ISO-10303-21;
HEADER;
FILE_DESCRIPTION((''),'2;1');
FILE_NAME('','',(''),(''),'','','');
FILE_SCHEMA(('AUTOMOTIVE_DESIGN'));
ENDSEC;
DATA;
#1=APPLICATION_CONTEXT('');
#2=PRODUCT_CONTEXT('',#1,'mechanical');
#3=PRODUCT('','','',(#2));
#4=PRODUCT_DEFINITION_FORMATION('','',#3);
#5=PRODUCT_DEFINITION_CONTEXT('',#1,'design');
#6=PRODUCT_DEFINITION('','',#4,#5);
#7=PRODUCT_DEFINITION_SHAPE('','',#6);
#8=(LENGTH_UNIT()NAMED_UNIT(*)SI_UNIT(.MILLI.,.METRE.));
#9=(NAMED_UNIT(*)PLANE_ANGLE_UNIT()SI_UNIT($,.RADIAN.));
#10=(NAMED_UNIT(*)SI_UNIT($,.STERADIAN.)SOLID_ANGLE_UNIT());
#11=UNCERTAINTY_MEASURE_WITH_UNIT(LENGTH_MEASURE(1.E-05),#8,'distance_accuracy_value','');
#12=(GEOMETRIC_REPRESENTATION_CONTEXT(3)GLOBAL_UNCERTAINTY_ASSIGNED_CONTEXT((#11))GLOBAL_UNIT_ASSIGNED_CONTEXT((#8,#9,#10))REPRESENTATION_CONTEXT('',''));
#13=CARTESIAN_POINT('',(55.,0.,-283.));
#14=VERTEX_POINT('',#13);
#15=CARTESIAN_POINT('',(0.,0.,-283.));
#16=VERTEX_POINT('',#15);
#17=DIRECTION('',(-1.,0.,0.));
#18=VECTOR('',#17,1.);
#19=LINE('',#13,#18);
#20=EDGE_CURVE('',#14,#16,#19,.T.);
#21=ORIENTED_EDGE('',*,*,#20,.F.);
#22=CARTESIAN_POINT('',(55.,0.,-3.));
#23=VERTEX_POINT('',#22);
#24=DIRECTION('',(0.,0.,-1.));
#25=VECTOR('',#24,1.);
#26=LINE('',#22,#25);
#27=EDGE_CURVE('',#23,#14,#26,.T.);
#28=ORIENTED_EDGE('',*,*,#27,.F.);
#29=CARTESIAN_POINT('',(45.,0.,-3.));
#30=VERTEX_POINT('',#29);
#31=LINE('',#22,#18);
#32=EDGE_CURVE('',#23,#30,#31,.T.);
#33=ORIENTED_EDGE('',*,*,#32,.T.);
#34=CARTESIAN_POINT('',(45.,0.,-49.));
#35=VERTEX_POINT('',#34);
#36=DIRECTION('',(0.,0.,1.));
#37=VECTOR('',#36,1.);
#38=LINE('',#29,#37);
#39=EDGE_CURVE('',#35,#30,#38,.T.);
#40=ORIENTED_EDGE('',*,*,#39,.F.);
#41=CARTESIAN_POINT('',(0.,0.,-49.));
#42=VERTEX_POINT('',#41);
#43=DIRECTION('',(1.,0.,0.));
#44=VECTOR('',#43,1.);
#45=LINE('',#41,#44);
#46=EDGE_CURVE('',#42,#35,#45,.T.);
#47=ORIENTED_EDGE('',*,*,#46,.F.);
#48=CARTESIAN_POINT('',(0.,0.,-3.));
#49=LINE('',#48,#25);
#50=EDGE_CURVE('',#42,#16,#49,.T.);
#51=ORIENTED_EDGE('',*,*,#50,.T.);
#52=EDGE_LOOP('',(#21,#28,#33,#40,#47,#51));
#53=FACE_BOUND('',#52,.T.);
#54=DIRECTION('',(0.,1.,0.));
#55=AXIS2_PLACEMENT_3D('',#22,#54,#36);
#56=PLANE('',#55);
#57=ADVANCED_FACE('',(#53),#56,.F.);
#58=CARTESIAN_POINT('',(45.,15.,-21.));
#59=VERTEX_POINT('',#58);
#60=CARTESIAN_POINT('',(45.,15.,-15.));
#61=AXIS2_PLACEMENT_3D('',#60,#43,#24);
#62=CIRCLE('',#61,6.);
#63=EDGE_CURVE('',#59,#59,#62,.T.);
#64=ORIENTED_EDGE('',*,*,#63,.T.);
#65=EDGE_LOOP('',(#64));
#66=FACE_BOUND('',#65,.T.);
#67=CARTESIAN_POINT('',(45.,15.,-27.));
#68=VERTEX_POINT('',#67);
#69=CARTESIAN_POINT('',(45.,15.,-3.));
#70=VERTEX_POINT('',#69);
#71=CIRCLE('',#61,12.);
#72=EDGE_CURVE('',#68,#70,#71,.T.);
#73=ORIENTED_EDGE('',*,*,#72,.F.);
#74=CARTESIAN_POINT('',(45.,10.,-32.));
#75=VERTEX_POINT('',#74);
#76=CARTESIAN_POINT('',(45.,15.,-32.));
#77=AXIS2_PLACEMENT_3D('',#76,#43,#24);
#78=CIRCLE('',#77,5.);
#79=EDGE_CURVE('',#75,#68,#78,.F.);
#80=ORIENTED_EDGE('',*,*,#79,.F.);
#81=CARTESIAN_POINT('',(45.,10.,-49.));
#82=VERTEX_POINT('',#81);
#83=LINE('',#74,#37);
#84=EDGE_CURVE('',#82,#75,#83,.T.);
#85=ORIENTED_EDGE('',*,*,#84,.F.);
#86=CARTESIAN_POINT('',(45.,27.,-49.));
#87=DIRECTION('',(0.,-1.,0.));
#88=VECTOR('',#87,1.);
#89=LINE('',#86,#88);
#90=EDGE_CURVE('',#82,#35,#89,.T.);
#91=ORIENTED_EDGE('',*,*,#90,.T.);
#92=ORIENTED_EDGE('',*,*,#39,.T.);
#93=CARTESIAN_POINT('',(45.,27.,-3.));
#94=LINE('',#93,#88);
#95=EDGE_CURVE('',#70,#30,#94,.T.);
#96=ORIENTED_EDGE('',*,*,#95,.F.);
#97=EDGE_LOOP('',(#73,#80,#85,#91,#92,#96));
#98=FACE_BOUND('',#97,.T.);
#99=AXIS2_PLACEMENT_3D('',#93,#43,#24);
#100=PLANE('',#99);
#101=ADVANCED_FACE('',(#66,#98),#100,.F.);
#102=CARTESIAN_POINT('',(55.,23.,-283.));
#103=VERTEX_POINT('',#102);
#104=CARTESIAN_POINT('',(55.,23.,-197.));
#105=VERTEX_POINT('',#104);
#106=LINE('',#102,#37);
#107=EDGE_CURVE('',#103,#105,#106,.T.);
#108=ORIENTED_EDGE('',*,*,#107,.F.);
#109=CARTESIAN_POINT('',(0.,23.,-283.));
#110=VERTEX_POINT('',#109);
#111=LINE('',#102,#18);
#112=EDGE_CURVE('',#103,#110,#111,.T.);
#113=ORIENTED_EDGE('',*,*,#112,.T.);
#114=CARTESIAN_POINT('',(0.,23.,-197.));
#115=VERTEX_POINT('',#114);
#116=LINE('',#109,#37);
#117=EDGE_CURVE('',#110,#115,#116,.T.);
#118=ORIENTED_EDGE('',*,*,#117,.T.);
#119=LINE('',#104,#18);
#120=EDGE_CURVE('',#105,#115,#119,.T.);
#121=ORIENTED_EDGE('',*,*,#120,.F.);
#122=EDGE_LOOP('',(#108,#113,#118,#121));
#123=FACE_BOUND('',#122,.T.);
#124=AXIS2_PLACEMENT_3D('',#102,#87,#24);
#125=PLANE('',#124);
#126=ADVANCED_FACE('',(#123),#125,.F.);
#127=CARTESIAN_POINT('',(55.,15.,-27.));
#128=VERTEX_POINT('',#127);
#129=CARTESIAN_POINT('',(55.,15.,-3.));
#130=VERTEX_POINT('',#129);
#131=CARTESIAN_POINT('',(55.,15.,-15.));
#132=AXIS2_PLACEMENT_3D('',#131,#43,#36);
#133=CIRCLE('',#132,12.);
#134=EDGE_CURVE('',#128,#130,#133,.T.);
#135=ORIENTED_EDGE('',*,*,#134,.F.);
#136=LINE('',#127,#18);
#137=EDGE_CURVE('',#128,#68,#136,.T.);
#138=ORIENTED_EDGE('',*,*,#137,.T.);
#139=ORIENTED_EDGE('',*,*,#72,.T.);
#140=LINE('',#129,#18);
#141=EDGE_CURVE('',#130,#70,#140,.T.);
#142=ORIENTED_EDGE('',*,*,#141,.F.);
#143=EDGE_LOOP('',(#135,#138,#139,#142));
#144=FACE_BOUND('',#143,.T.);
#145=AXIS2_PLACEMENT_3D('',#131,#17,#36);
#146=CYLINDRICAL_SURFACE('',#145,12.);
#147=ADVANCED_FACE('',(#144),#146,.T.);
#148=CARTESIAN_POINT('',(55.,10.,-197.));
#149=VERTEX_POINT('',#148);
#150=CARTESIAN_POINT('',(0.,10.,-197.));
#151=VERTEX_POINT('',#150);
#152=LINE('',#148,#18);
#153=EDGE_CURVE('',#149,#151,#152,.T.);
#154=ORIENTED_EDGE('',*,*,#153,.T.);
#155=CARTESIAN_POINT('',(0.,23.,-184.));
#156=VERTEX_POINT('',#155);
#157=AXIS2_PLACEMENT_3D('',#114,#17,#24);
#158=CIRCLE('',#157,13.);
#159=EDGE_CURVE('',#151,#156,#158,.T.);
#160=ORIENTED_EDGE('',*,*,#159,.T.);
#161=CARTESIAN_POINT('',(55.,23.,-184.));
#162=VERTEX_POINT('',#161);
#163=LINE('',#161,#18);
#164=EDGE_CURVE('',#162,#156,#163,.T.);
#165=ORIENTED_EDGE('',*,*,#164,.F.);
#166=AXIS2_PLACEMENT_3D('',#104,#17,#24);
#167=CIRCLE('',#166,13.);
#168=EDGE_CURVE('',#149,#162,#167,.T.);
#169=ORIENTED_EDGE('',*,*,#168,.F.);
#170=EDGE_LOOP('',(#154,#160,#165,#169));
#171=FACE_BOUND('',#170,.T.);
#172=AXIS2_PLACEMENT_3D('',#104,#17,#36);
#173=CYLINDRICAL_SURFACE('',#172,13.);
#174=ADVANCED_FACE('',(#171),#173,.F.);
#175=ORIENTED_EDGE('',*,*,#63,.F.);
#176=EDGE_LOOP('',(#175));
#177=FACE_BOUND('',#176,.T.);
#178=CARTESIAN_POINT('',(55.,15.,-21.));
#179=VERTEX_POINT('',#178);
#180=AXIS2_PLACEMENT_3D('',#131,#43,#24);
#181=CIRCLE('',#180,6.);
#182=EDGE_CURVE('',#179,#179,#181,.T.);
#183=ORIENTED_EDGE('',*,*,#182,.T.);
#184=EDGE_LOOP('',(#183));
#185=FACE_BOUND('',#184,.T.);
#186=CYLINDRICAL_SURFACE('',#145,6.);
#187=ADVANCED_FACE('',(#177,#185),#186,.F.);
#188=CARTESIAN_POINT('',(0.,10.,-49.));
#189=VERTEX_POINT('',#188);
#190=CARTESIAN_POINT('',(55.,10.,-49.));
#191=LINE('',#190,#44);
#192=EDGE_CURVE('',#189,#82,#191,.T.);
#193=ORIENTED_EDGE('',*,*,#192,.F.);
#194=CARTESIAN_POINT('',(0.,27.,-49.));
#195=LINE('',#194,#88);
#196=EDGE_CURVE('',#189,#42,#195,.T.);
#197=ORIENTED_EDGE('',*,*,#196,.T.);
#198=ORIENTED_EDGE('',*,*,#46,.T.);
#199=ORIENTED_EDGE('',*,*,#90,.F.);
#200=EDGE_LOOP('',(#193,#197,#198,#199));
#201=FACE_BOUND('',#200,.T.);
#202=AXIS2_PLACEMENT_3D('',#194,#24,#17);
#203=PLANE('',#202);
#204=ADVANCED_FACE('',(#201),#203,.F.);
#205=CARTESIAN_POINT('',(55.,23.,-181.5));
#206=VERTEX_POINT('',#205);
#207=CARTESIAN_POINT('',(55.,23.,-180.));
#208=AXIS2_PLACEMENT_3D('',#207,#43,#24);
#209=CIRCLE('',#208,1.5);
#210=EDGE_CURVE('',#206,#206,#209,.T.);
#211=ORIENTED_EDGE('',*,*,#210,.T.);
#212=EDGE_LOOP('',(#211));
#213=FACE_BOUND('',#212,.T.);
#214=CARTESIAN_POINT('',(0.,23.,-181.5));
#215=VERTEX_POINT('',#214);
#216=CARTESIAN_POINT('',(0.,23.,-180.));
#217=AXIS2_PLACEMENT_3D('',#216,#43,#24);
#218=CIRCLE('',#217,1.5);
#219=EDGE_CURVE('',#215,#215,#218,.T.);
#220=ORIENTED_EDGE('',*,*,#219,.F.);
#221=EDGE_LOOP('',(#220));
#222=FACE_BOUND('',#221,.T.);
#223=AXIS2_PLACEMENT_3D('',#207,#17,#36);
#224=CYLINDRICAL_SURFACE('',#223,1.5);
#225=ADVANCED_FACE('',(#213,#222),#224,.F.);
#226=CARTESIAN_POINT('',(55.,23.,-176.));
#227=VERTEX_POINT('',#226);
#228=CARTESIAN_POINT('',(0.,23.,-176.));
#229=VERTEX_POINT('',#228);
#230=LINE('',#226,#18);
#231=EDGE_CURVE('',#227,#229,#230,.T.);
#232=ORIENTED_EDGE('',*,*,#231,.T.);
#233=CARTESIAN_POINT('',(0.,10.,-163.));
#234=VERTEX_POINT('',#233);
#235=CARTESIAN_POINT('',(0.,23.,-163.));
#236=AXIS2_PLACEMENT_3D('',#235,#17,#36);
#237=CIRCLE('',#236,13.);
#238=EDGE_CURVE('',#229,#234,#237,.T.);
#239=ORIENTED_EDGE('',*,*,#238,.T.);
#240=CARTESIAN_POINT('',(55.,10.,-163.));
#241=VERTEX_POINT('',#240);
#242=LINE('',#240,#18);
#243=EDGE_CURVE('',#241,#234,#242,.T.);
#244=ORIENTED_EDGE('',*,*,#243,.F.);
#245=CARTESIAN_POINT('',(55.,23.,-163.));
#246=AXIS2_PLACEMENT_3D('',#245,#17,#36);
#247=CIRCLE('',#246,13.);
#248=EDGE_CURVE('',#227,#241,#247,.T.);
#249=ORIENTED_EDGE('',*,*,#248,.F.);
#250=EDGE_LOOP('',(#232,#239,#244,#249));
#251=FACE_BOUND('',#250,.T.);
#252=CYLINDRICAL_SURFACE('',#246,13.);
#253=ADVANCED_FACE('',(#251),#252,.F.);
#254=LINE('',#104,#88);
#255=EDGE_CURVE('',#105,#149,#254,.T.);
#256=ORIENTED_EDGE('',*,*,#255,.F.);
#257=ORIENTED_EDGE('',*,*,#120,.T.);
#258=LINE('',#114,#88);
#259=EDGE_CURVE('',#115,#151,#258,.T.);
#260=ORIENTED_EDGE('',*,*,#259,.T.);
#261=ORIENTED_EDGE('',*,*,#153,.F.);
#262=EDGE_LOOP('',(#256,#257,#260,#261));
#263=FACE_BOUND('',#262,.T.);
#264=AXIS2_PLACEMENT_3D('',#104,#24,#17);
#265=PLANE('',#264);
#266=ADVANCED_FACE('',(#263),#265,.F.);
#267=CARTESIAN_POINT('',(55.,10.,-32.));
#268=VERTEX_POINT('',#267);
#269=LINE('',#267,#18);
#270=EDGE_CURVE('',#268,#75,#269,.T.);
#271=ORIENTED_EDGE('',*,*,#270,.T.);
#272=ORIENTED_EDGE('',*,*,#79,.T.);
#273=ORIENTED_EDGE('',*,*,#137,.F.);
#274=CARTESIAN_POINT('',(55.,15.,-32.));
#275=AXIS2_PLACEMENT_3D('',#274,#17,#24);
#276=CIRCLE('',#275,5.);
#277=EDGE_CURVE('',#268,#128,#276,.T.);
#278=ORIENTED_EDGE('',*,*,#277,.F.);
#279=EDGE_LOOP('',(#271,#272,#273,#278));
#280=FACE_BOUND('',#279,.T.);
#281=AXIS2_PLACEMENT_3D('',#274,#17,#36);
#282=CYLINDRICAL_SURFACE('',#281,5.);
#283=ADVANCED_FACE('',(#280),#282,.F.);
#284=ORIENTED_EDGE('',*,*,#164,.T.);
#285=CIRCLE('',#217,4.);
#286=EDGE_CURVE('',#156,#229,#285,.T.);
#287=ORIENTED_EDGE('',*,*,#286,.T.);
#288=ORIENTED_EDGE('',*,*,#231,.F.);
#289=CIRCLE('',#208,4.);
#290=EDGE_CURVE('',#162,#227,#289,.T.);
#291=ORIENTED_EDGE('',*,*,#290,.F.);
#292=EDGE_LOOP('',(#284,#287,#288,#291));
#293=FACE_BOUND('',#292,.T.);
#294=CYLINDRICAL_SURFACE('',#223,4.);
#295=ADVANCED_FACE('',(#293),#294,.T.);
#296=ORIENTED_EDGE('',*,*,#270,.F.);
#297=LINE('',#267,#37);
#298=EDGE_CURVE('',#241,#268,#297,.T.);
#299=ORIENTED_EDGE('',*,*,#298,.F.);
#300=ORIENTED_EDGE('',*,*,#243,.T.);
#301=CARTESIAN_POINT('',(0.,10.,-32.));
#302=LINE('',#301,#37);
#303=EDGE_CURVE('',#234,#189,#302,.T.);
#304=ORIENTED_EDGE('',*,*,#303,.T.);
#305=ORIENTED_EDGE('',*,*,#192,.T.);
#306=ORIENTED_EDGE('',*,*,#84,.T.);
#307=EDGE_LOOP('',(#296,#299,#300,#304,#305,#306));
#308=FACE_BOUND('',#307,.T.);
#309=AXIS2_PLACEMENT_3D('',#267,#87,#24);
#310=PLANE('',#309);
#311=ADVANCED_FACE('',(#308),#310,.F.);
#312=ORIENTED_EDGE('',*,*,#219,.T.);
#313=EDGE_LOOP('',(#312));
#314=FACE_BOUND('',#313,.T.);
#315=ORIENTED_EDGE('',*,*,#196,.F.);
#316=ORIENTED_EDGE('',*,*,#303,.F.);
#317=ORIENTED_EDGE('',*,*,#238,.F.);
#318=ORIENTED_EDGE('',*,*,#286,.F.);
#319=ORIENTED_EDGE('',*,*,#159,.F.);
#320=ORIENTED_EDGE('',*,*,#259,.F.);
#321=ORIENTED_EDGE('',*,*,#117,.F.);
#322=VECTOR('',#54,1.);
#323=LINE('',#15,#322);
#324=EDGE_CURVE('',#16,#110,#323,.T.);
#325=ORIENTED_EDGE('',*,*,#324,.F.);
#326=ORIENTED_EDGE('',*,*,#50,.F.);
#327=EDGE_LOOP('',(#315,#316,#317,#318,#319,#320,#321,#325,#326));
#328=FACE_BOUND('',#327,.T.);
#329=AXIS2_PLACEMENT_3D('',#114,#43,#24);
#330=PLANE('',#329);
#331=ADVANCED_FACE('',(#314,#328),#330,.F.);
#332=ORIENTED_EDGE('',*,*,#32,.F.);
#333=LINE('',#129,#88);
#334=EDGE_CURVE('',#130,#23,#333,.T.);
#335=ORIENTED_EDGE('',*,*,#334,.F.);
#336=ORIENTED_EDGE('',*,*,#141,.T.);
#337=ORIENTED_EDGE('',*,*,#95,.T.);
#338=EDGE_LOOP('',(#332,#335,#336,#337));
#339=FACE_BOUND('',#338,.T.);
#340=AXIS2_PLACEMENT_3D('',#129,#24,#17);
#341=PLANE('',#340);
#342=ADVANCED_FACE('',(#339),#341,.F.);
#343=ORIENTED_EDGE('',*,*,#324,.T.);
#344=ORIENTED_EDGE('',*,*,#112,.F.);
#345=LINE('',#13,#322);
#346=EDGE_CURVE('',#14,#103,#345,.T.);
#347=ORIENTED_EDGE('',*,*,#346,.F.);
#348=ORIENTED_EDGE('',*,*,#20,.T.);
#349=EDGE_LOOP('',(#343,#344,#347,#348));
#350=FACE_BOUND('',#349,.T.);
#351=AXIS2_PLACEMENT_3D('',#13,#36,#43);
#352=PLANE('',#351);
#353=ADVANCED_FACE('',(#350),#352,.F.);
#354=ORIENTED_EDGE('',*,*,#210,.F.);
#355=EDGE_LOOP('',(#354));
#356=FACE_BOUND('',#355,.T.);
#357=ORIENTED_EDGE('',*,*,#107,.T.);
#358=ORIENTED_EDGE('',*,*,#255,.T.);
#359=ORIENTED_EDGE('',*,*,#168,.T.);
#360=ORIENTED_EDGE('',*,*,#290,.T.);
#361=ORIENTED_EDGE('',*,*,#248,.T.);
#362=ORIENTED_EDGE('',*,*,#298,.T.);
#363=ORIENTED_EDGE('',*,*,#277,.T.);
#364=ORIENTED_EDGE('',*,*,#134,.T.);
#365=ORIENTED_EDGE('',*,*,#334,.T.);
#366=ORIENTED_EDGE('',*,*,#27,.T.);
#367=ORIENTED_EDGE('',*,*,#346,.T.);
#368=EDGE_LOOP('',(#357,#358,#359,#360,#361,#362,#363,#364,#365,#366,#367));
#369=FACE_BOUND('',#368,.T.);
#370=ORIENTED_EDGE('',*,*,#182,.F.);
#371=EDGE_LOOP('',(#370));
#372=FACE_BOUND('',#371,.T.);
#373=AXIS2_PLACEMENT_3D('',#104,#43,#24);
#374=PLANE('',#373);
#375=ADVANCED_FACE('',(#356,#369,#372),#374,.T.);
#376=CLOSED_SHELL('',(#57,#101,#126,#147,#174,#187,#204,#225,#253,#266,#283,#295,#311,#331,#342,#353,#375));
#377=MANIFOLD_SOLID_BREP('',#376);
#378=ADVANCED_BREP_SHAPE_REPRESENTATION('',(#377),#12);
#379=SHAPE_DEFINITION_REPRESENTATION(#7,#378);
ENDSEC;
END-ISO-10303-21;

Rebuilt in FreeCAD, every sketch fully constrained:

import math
import FreeCAD as App
import Part
import Sketcher

V = App.Vector
Q = App.Units.Quantity


def add_polygon(sketch, points):
    """Adds a closed chain of lines whose ends are joined by coincident constraints."""
    first, n = sketch.GeometryCount, len(points)
    for a, b in zip(points, points[1:] + points[:1]):
        sketch.addGeometry(Part.LineSegment(App.Vector(*a, 0), App.Vector(*b, 0)), False)
    for i in range(n):
        sketch.addConstraint(Sketcher.Constraint("Coincident", first + i, 2, first + (i + 1) % n, 1))

doc = App.newDocument("Part")
body = doc.addObject("PartDesign::Body", "Body")

# Sketch on YZ plane
sketch1 = body.newObject("Sketcher::SketchObject", "Sketch")
sketch1.AttachmentSupport = (doc.getObject("YZ_Plane"), [""])
sketch1.MapMode = "FlatFace"
sketch1.addGeometry(Part.LineSegment(V(15, -3, 0), V(0, -3, 0)), False)
sketch1.addGeometry(Part.LineSegment(V(0, -3, 0), V(0, -283, 0)), False)
sketch1.addGeometry(Part.LineSegment(V(0, -283, 0), V(23, -283, 0)), False)
sketch1.addGeometry(Part.LineSegment(V(23, -283, 0), V(23, -197, 0)), False)
sketch1.addGeometry(Part.LineSegment(V(23, -197, 0), V(10, -197, 0)), False)
sketch1.addGeometry(Part.ArcOfCircle(Part.Circle(V(23, -197, 0), V(0, 0, 1), 13), math.radians(90), math.radians(180)), False)
sketch1.addGeometry(Part.ArcOfCircle(Part.Circle(V(23, -180, 0), V(0, 0, 1), 4), math.radians(-90), math.radians(90)), False)
sketch1.addGeometry(Part.ArcOfCircle(Part.Circle(V(23, -163, 0), V(0, 0, 1), 13), math.radians(-180), math.radians(-90)), False)
sketch1.addGeometry(Part.LineSegment(V(10, -163, 0), V(10, -32, 0)), False)
sketch1.addGeometry(Part.ArcOfCircle(Part.Circle(V(15, -32, 0), V(0, 0, 1), 5), math.radians(90), math.radians(180)), False)
sketch1.addGeometry(Part.ArcOfCircle(Part.Circle(V(15, -15, 0), V(0, 0, 1), 12), math.radians(-90), math.radians(0)), False)
sketch1.addGeometry(Part.ArcOfCircle(Part.Circle(V(15, -15, 0), V(0, 0, 1), 12), math.radians(0), math.radians(90)), False)
sketch1.addGeometry(Part.Circle(V(15, -15, 0), V(0, 0, 1), 6), False)
sketch1.addGeometry(Part.Circle(V(23, -180, 0), V(0, 0, 1), 1.5), False)
sketch1.addConstraint(Sketcher.Constraint("Coincident", 0, 2, 1, 1))
sketch1.addConstraint(Sketcher.Constraint("Coincident", 1, 2, 2, 1))
sketch1.addConstraint(Sketcher.Constraint("Coincident", 2, 2, 3, 1))
sketch1.addConstraint(Sketcher.Constraint("Coincident", 3, 2, 4, 1))
sketch1.addConstraint(Sketcher.Constraint("Coincident", 4, 2, 5, 2))
sketch1.addConstraint(Sketcher.Constraint("Tangent", 5, 1, 6, 1))
sketch1.addConstraint(Sketcher.Constraint("Tangent", 6, 2, 7, 2))
sketch1.addConstraint(Sketcher.Constraint("Tangent", 7, 1, 8, 1))
sketch1.addConstraint(Sketcher.Constraint("Tangent", 8, 2, 9, 2))
sketch1.addConstraint(Sketcher.Constraint("Tangent", 9, 1, 10, 1))
sketch1.addConstraint(Sketcher.Constraint("Tangent", 10, 2, 11, 1))
sketch1.addConstraint(Sketcher.Constraint("Tangent", 11, 2, 0, 1))
sketch1.addConstraint(Sketcher.Constraint("Horizontal", 0))
sketch1.addConstraint(Sketcher.Constraint("Vertical", 1))
sketch1.addConstraint(Sketcher.Constraint("Horizontal", 2))
sketch1.addConstraint(Sketcher.Constraint("Vertical", 3))
sketch1.addConstraint(Sketcher.Constraint("Horizontal", 4))
sketch1.addConstraint(Sketcher.Constraint("Vertical", 8))
sketch1.addConstraint(Sketcher.Constraint("Coincident", 12, 3, 10, 3))
sketch1.addConstraint(Sketcher.Constraint("Coincident", 13, 3, 6, 3))
sketch1.addConstraint(Sketcher.Constraint("Coincident", 3, 2, 5, 3))
sketch1.addConstraint(Sketcher.Constraint("Equal", 5, 7))
sketch1.addConstraint(Sketcher.Constraint("Equal", 10, 11))
sketch1.addConstraint(Sketcher.Constraint("PointOnObject", 0, 2, -2))
sketch1.addConstraint(Sketcher.Constraint("Horizontal", 12, 3, 10, 2))
sketch1.addConstraint(Sketcher.Constraint("Vertical", 5, 3, 6, 3))
sketch1.addConstraint(Sketcher.Constraint("Vertical", 6, 3, 7, 3))
sketch1.addConstraint(Sketcher.Constraint("Vertical", 9, 3, 10, 3))
sketch1.addConstraint(Sketcher.Constraint("Diameter", 12, Q("12 mm")))
sketch1.addConstraint(Sketcher.Constraint("Diameter", 13, Q("3 mm")))
sketch1.addConstraint(Sketcher.Constraint("Radius", 5, Q("13 mm")))
sketch1.addConstraint(Sketcher.Constraint("Radius", 6, Q("4 mm")))
sketch1.addConstraint(Sketcher.Constraint("Radius", 9, Q("5 mm")))
sketch1.addConstraint(Sketcher.Constraint("Radius", 10, Q("12 mm")))
sketch1.addConstraint(Sketcher.Constraint("DistanceX", 0, 2, 0, 1, Q("15 mm")))
sketch1.addConstraint(Sketcher.Constraint("DistanceY", 1, 2, 1, 1, Q("280 mm")))
sketch1.addConstraint(Sketcher.Constraint("DistanceY", 3, 1, 3, 2, Q("86 mm")))
sketch1.addConstraint(Sketcher.Constraint("DistanceY", 5, 3, -1, 1, Q("197 mm")))
pad1 = body.newObject("PartDesign::Pad", "Pad")
pad1.Profile = sketch1
pad1.Length = 55

# Sketch on XZ plane
sketch2 = body.newObject("Sketcher::SketchObject", "Sketch001")
sketch2.AttachmentSupport = (doc.getObject("XZ_Plane"), [""])
sketch2.MapMode = "FlatFace"
add_polygon(sketch2, [(0, -3), (0, -49), (45, -49), (45, -3)])  # lines 0-3
sketch2.addConstraint(Sketcher.Constraint("Vertical", 0))
sketch2.addConstraint(Sketcher.Constraint("Horizontal", 1))
sketch2.addConstraint(Sketcher.Constraint("Vertical", 2))
sketch2.addConstraint(Sketcher.Constraint("Horizontal", 3))
sketch2.addConstraint(Sketcher.Constraint("PointOnObject", 0, 2, -2))
sketch2.addConstraint(Sketcher.Constraint("DistanceX", 1, 1, 1, 2, Q("45 mm")))
sketch2.addConstraint(Sketcher.Constraint("DistanceY", 0, 2, 0, 1, Q("46 mm")))
sketch2.addConstraint(Sketcher.Constraint("DistanceY", 0, 2, -1, 1, Q("49 mm")))
pocket1 = body.newObject("PartDesign::Pocket", "Pocket")
pocket1.Profile = sketch2
pocket1.Type = "ThroughAll"

doc.recompute()
